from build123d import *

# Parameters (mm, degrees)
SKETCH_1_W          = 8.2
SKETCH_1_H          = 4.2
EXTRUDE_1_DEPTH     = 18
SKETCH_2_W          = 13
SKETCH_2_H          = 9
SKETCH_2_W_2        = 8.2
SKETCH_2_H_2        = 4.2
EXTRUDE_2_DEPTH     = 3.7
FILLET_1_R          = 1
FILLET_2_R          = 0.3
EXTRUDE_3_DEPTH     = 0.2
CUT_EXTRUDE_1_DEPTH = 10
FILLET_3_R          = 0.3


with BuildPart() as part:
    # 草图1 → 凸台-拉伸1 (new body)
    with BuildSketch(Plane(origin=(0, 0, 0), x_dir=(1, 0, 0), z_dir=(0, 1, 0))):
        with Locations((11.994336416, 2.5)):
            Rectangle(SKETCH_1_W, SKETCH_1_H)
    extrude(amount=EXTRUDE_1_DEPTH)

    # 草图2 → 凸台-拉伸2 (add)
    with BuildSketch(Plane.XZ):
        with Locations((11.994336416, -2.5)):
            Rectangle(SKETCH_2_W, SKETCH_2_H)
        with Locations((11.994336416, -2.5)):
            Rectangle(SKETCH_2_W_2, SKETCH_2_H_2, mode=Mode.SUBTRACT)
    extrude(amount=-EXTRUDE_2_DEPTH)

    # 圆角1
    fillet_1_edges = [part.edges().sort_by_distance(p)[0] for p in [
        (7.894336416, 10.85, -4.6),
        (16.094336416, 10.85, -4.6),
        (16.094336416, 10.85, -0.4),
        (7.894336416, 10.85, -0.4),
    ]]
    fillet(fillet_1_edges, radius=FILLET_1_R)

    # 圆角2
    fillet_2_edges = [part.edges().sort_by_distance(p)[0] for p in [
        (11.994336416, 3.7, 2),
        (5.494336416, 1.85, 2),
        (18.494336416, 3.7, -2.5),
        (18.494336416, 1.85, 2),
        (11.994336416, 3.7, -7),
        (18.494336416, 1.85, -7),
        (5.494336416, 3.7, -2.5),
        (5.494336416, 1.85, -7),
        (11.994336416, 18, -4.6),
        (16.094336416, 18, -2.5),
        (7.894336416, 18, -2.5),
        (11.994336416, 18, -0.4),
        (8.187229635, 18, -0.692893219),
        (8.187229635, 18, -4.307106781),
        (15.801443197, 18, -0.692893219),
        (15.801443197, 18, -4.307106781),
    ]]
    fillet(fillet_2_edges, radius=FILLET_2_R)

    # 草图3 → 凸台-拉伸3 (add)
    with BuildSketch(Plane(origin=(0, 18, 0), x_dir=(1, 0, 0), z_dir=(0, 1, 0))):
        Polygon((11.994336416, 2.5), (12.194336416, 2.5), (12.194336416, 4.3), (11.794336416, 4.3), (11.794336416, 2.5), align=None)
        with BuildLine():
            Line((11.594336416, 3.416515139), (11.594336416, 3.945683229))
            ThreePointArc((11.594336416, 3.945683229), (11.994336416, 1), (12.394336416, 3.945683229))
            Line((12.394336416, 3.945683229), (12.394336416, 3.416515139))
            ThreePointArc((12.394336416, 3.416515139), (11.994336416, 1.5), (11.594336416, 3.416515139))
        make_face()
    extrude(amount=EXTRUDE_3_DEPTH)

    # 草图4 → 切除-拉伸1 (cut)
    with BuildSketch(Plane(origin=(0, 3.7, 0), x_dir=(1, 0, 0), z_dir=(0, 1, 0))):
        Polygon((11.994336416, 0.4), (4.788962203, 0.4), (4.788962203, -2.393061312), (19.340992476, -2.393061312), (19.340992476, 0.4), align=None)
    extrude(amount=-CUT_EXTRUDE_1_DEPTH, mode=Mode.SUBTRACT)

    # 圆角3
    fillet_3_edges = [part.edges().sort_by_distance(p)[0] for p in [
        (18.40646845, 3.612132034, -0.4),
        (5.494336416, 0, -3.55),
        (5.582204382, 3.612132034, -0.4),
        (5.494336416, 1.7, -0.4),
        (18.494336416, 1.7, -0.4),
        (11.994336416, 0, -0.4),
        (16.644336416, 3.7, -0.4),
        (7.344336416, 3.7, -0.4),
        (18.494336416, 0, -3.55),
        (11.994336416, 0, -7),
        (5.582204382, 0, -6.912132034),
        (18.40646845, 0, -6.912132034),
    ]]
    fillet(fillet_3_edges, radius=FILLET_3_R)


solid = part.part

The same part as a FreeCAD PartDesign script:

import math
import FreeCAD as App
import Part
import Sketcher
Q = App.Units.Quantity


def edges_at(feature, points):
    """Names of the edges that pass closest to the given points."""
    edges = feature.Shape.Edges
    near = lambda p: min(range(len(edges)), key=lambda i: edges[i].distToShape(Part.Vertex(*p))[0])
    return sorted({f"Edge{near(p) + 1}" for p in points})

doc = App.newDocument("Part")
params = doc.addObject("Spreadsheet::Sheet", "Params")
for row, (alias, value) in enumerate([
    ("sketch1_width", "8.2 mm"),
    ("sketch1_height", "4.2 mm"),
    ("pad1_length", "18 mm"),
    ("sketch2_width", "13 mm"),
    ("sketch2_height", "9 mm"),
    ("sketch2_width2", "8.2 mm"),
    ("sketch2_height2", "4.2 mm"),
    ("pad2_length", "3.7 mm"),
    ("fillet_radius", "1 mm"),
    ("fillet2_radius", "0.3 mm"),
    ("sketch3_radius", "1 mm"),
    ("sketch3_radius2", "1.5 mm"),
    ("sketch3_width", "0.4 mm"),
    ("sketch3_height", "1.8 mm"),
    ("pad3_length", "0.2 mm"),
    ("pocket1_length", "10 mm"),
    ("fillet3_radius", "0.3 mm"),
], start=1):
    params.set(f"A{row}", alias)
    params.set(f"B{row}", "=" + value)
    params.setAlias(f"B{row}", alias)

body = doc.addObject("PartDesign::Body", "Body")

# Sketch on XZ plane
sketch1 = body.newObject("Sketcher::SketchObject", "Sketch")
sketch1.AttachmentSupport = (doc.getObject("XZ_Plane"), [""])
sketch1.MapMode = "FlatFace"
sketch1.addGeometry(Part.LineSegment(App.Vector(7.9, -4.6, 0), App.Vector(7.9, -0.4, 0)), False)
sketch1.addGeometry(Part.LineSegment(App.Vector(7.9, -0.4, 0), App.Vector(16.1, -0.4, 0)), False)
sketch1.addGeometry(Part.LineSegment(App.Vector(16.1, -0.4, 0), App.Vector(16.1, -4.6, 0)), False)
sketch1.addGeometry(Part.LineSegment(App.Vector(16.1, -4.6, 0), App.Vector(7.9, -4.6, 0)), False)
sketch1.addConstraint(Sketcher.Constraint("Coincident", 0, 2, 1, 1))
sketch1.addConstraint(Sketcher.Constraint("Coincident", 1, 2, 2, 1))
sketch1.addConstraint(Sketcher.Constraint("Coincident", 2, 2, 3, 1))
sketch1.addConstraint(Sketcher.Constraint("Coincident", 3, 2, 0, 1))
sketch1.addConstraint(Sketcher.Constraint("Vertical", 0))
sketch1.addConstraint(Sketcher.Constraint("Horizontal", 1))
sketch1.addConstraint(Sketcher.Constraint("Vertical", 2))
sketch1.addConstraint(Sketcher.Constraint("Horizontal", 3))
sketch1.addConstraint(Sketcher.Constraint("DistanceX", 1, 1, 1, 2, Q("8.2 mm")))
sketch1.addConstraint(Sketcher.Constraint("DistanceY", 0, 1, 0, 2, Q("4.2 mm")))
sketch1.addConstraint(Sketcher.Constraint("DistanceY", 0, 2, -1, 1, Q("0.4 mm")))
sketch1.addConstraint(Sketcher.Constraint("DistanceX", -1, 1, 0, 2, Q("7.894336 mm")))
sketch1.setExpression("Constraints[8]", "Params.sketch1_width")
sketch1.setExpression("Constraints[9]", "Params.sketch1_height")
pad1 = body.newObject("PartDesign::Pad", "Pad")
pad1.Profile = sketch1
pad1.setExpression("Length", "Params.pad1_length")
pad1.Reversed = True

# Sketch on XZ plane
sketch2 = body.newObject("Sketcher::SketchObject", "Sketch001")
sketch2.AttachmentSupport = (doc.getObject("XZ_Plane"), [""])
sketch2.MapMode = "FlatFace"
sketch2.addGeometry(Part.LineSegment(App.Vector(5.5, 2, 0), App.Vector(5.5, -7, 0)), False)
sketch2.addGeometry(Part.LineSegment(App.Vector(5.5, -7, 0), App.Vector(18.5, -7, 0)), False)
sketch2.addGeometry(Part.LineSegment(App.Vector(18.5, -7, 0), App.Vector(18.5, 2, 0)), False)
sketch2.addGeometry(Part.LineSegment(App.Vector(18.5, 2, 0), App.Vector(5.5, 2, 0)), False)
sketch2.addGeometry(Part.LineSegment(App.Vector(16.1, -4.6, 0), App.Vector(7.9, -4.6, 0)), False)
sketch2.addGeometry(Part.LineSegment(App.Vector(7.9, -4.6, 0), App.Vector(7.9, -0.4, 0)), False)
sketch2.addGeometry(Part.LineSegment(App.Vector(7.9, -0.4, 0), App.Vector(16.1, -0.4, 0)), False)
sketch2.addGeometry(Part.LineSegment(App.Vector(16.1, -0.4, 0), App.Vector(16.1, -4.6, 0)), False)
sketch2.addConstraint(Sketcher.Constraint("Coincident", 0, 2, 1, 1))
sketch2.addConstraint(Sketcher.Constraint("Coincident", 1, 2, 2, 1))
sketch2.addConstraint(Sketcher.Constraint("Coincident", 2, 2, 3, 1))
sketch2.addConstraint(Sketcher.Constraint("Coincident", 3, 2, 0, 1))
sketch2.addConstraint(Sketcher.Constraint("Coincident", 4, 2, 5, 1))
sketch2.addConstraint(Sketcher.Constraint("Coincident", 5, 2, 6, 1))
sketch2.addConstraint(Sketcher.Constraint("Coincident", 6, 2, 7, 1))
sketch2.addConstraint(Sketcher.Constraint("Coincident", 7, 2, 4, 1))
sketch2.addConstraint(Sketcher.Constraint("Vertical", 0))
sketch2.addConstraint(Sketcher.Constraint("Horizontal", 1))
sketch2.addConstraint(Sketcher.Constraint("Vertical", 2))
sketch2.addConstraint(Sketcher.Constraint("Horizontal", 3))
sketch2.addConstraint(Sketcher.Constraint("Horizontal", 4))
sketch2.addConstraint(Sketcher.Constraint("Vertical", 5))
sketch2.addConstraint(Sketcher.Constraint("Horizontal", 6))
sketch2.addConstraint(Sketcher.Constraint("Vertical", 7))
sketch2.addConstraint(Sketcher.Constraint("DistanceX", 1, 1, 1, 2, Q("13 mm")))
sketch2.addConstraint(Sketcher.Constraint("DistanceY", 0, 2, 0, 1, Q("9 mm")))
sketch2.addConstraint(Sketcher.Constraint("DistanceX", 4, 2, 4, 1, Q("8.2 mm")))
sketch2.addConstraint(Sketcher.Constraint("DistanceY", 5, 1, 5, 2, Q("4.2 mm")))
sketch2.addConstraint(Sketcher.Constraint("DistanceY", 0, 2, -1, 1, Q("7 mm")))
sketch2.addConstraint(Sketcher.Constraint("DistanceY", 4, 2, -1, 1, Q("4.6 mm")))
sketch2.addConstraint(Sketcher.Constraint("DistanceX", 0, 2, 4, 2, Q("2.4 mm")))
sketch2.addConstraint(Sketcher.Constraint("DistanceX", -1, 1, 0, 2, Q("5.494336 mm")))
sketch2.setExpression("Constraints[16]", "Params.sketch2_width")
sketch2.setExpression("Constraints[17]", "Params.sketch2_height")
sketch2.setExpression("Constraints[18]", "Params.sketch2_width2")
sketch2.setExpression("Constraints[19]", "Params.sketch2_height2")
pad2 = body.newObject("PartDesign::Pad", "Pad001")
pad2.Profile = sketch2
pad2.setExpression("Length", "Params.pad2_length")
pad2.Reversed = True
doc.recompute()

fillet = body.newObject("PartDesign::Fillet", "Fillet")
fillet.Base = (pad2, edges_at(pad2, [
    (7.894, 10.85, -4.6),
    (16.094, 10.85, -4.6),
    (16.094, 10.85, -0.4),
    (7.894, 10.85, -0.4),
]))
fillet.setExpression("Radius", "Params.fillet_radius")
doc.recompute()

fillet2 = body.newObject("PartDesign::Fillet", "Fillet001")
fillet2.Base = (fillet, edges_at(fillet, [
    (11.994, 3.7, 2),
    (5.494, 1.85, 2),
    (18.494, 3.7, -2.5),
    (18.494, 1.85, 2),
    (11.994, 3.7, -7),
    (18.494, 1.85, -7),
    (5.494, 3.7, -2.5),
    (5.494, 1.85, -7),
    (11.994, 18, -4.6),
    (16.094, 18, -2.5),
    (7.894, 18, -2.5),
    (11.994, 18, -0.4),
    (8.187, 18, -0.693),
    (8.187, 18, -4.307),
    (15.801, 18, -0.693),
    (15.801, 18, -4.307),
]))
fillet2.setExpression("Radius", "Params.fillet2_radius")

# Sketch on XZ plane
sketch3 = body.newObject("Sketcher::SketchObject", "Sketch002")
sketch3.AttachmentSupport = (doc.getObject("XZ_Plane"), [""])
sketch3.MapMode = "FlatFace"
sketch3.AttachmentOffset = App.Placement(App.Vector(0, 0, -18), App.Rotation())
sketch3.addGeometry(Part.LineSegment(App.Vector(12.19, -2.5, 0), App.Vector(12.19, -4.3, 0)), False)
sketch3.addGeometry(Part.LineSegment(App.Vector(12.19, -4.3, 0), App.Vector(11.79, -4.3, 0)), False)
sketch3.addGeometry(Part.LineSegment(App.Vector(11.79, -4.3, 0), App.Vector(11.79, -2.5, 0)), False)
sketch3.addGeometry(Part.LineSegment(App.Vector(11.79, -2.5, 0), App.Vector(12.19, -2.5, 0)), False)
sketch3.addGeometry(Part.LineSegment(App.Vector(11.59, -3.42, 0), App.Vector(11.59, -3.95, 0)), False)
sketch3.addGeometry(Part.ArcOfCircle(Part.Circle(App.Vector(11.99, -2.5, 0), App.Vector(0, 0, 1), 1.5), math.radians(-75), math.radians(255)), False)
sketch3.addGeometry(Part.LineSegment(App.Vector(12.39, -3.95, 0), App.Vector(12.39, -3.42, 0)), False)
sketch3.addGeometry(Part.ArcOfCircle(Part.Circle(App.Vector(11.99, -2.5, 0), App.Vector(0, 0, 1), 1), math.radians(-66), math.radians(246)), False)
sketch3.addConstraint(Sketcher.Constraint("Coincident", 0, 2, 1, 1))
sketch3.addConstraint(Sketcher.Constraint("Coincident", 1, 2, 2, 1))
sketch3.addConstraint(Sketcher.Constraint("Coincident", 2, 2, 3, 1))
sketch3.addConstraint(Sketcher.Constraint("Coincident", 3, 2, 0, 1))
sketch3.addConstraint(Sketcher.Constraint("Coincident", 4, 2, 5, 2))
sketch3.addConstraint(Sketcher.Constraint("Coincident", 5, 1, 6, 1))
sketch3.addConstraint(Sketcher.Constraint("Coincident", 6, 2, 7, 1))
sketch3.addConstraint(Sketcher.Constraint("Coincident", 7, 2, 4, 1))
sketch3.addConstraint(Sketcher.Constraint("Vertical", 0))
sketch3.addConstraint(Sketcher.Constraint("Horizontal", 1))
sketch3.addConstraint(Sketcher.Constraint("Vertical", 2))
sketch3.addConstraint(Sketcher.Constraint("Horizontal", 3))
sketch3.addConstraint(Sketcher.Constraint("Vertical", 4))
sketch3.addConstraint(Sketcher.Constraint("Vertical", 6))
sketch3.addConstraint(Sketcher.Constraint("Coincident", 7, 3, 5, 3))
sketch3.addConstraint(Sketcher.Constraint("Horizontal", 7, 3, 2, 2))
sketch3.addConstraint(Sketcher.Constraint("Horizontal", 4, 2, 5, 1))
sketch3.addConstraint(Sketcher.Constraint("Radius", 7, Q("1 mm")))
sketch3.addConstraint(Sketcher.Constraint("Radius", 5, Q("1.5 mm")))
sketch3.addConstraint(Sketcher.Constraint("DistanceX", 1, 2, 1, 1, Q("0.4 mm")))
sketch3.addConstraint(Sketcher.Constraint("DistanceY", 0, 2, 0, 1, Q("1.8 mm")))
sketch3.addConstraint(Sketcher.Constraint("DistanceY", 5, 3, -1, 1, Q("2.5 mm")))
sketch3.addConstraint(Sketcher.Constraint("DistanceX", 5, 3, 0, 2, Q("0.2 mm")))
sketch3.addConstraint(Sketcher.Constraint("DistanceX", 4, 2, 1, 2, Q("0.2 mm")))
sketch3.addConstraint(Sketcher.Constraint("DistanceX", -1, 1, 5, 3, Q("11.994336 mm")))
sketch3.setExpression("Constraints[17]", "Params.sketch3_radius")
sketch3.setExpression("Constraints[18]", "Params.sketch3_radius2")
sketch3.setExpression("Constraints[19]", "Params.sketch3_width")
sketch3.setExpression("Constraints[20]", "Params.sketch3_height")
pad3 = body.newObject("PartDesign::Pad", "Pad002")
pad3.Profile = sketch3
pad3.setExpression("Length", "Params.pad3_length")
pad3.Reversed = True

# Sketch on XZ plane
sketch4 = body.newObject("Sketcher::SketchObject", "Sketch003")
sketch4.AttachmentSupport = (doc.getObject("XZ_Plane"), [""])
sketch4.MapMode = "FlatFace"
sketch4.AttachmentOffset = App.Placement(App.Vector(0, 0, -3.7), App.Rotation())
sketch4.addGeometry(Part.LineSegment(App.Vector(4.8, -0.4, 0), App.Vector(4.8, 2.4, 0)), False)
sketch4.addGeometry(Part.LineSegment(App.Vector(4.8, 2.4, 0), App.Vector(19.3, 2.4, 0)), False)
sketch4.addGeometry(Part.LineSegment(App.Vector(19.3, 2.4, 0), App.Vector(19.3, -0.4, 0)), False)
sketch4.addGeometry(Part.LineSegment(App.Vector(19.3, -0.4, 0), App.Vector(4.8, -0.4, 0)), False)
sketch4.addConstraint(Sketcher.Constraint("Coincident", 0, 2, 1, 1))
sketch4.addConstraint(Sketcher.Constraint("Coincident", 1, 2, 2, 1))
sketch4.addConstraint(Sketcher.Constraint("Coincident", 2, 2, 3, 1))
sketch4.addConstraint(Sketcher.Constraint("Coincident", 3, 2, 0, 1))
sketch4.addConstraint(Sketcher.Constraint("Vertical", 0))
sketch4.addConstraint(Sketcher.Constraint("Horizontal", 1))
sketch4.addConstraint(Sketcher.Constraint("Vertical", 2))
sketch4.addConstraint(Sketcher.Constraint("Horizontal", 3))
sketch4.addConstraint(Sketcher.Constraint("DistanceY", 2, 2, -1, 1, Q("0.4 mm")))
sketch4.addConstraint(Sketcher.Constraint("DistanceX", 1, 1, 1, 2, Q("14.55203 mm")))
sketch4.addConstraint(Sketcher.Constraint("DistanceY", 0, 1, 0, 2, Q("2.793061 mm")))
sketch4.addConstraint(Sketcher.Constraint("DistanceX", -1, 1, 0, 2, Q("4.788962 mm")))
pocket1 = body.newObject("PartDesign::Pocket", "Pocket")
pocket1.Profile = sketch4
pocket1.setExpression("Length", "Params.pocket1_length")
pocket1.Reversed = True
doc.recompute()

fillet3 = body.newObject("PartDesign::Fillet", "Fillet002")
fillet3.Base = (pocket1, edges_at(pocket1, [
    (18.406, 3.612, -0.4),
    (5.494, 0, -3.55),
    (5.582, 3.612, -0.4),
    (5.494, 1.7, -0.4),
    (18.494, 1.7, -0.4),
    (11.994, 0, -0.4),
    (16.644, 3.7, -0.4),
    (7.344, 3.7, -0.4),
    (18.494, 0, -3.55),
    (11.994, 0, -7),
    (5.582, 0, -6.912),
    (18.406, 0, -6.912),
]))
fillet3.setExpression("Radius", "Params.fillet3_radius")

doc.recompute()
